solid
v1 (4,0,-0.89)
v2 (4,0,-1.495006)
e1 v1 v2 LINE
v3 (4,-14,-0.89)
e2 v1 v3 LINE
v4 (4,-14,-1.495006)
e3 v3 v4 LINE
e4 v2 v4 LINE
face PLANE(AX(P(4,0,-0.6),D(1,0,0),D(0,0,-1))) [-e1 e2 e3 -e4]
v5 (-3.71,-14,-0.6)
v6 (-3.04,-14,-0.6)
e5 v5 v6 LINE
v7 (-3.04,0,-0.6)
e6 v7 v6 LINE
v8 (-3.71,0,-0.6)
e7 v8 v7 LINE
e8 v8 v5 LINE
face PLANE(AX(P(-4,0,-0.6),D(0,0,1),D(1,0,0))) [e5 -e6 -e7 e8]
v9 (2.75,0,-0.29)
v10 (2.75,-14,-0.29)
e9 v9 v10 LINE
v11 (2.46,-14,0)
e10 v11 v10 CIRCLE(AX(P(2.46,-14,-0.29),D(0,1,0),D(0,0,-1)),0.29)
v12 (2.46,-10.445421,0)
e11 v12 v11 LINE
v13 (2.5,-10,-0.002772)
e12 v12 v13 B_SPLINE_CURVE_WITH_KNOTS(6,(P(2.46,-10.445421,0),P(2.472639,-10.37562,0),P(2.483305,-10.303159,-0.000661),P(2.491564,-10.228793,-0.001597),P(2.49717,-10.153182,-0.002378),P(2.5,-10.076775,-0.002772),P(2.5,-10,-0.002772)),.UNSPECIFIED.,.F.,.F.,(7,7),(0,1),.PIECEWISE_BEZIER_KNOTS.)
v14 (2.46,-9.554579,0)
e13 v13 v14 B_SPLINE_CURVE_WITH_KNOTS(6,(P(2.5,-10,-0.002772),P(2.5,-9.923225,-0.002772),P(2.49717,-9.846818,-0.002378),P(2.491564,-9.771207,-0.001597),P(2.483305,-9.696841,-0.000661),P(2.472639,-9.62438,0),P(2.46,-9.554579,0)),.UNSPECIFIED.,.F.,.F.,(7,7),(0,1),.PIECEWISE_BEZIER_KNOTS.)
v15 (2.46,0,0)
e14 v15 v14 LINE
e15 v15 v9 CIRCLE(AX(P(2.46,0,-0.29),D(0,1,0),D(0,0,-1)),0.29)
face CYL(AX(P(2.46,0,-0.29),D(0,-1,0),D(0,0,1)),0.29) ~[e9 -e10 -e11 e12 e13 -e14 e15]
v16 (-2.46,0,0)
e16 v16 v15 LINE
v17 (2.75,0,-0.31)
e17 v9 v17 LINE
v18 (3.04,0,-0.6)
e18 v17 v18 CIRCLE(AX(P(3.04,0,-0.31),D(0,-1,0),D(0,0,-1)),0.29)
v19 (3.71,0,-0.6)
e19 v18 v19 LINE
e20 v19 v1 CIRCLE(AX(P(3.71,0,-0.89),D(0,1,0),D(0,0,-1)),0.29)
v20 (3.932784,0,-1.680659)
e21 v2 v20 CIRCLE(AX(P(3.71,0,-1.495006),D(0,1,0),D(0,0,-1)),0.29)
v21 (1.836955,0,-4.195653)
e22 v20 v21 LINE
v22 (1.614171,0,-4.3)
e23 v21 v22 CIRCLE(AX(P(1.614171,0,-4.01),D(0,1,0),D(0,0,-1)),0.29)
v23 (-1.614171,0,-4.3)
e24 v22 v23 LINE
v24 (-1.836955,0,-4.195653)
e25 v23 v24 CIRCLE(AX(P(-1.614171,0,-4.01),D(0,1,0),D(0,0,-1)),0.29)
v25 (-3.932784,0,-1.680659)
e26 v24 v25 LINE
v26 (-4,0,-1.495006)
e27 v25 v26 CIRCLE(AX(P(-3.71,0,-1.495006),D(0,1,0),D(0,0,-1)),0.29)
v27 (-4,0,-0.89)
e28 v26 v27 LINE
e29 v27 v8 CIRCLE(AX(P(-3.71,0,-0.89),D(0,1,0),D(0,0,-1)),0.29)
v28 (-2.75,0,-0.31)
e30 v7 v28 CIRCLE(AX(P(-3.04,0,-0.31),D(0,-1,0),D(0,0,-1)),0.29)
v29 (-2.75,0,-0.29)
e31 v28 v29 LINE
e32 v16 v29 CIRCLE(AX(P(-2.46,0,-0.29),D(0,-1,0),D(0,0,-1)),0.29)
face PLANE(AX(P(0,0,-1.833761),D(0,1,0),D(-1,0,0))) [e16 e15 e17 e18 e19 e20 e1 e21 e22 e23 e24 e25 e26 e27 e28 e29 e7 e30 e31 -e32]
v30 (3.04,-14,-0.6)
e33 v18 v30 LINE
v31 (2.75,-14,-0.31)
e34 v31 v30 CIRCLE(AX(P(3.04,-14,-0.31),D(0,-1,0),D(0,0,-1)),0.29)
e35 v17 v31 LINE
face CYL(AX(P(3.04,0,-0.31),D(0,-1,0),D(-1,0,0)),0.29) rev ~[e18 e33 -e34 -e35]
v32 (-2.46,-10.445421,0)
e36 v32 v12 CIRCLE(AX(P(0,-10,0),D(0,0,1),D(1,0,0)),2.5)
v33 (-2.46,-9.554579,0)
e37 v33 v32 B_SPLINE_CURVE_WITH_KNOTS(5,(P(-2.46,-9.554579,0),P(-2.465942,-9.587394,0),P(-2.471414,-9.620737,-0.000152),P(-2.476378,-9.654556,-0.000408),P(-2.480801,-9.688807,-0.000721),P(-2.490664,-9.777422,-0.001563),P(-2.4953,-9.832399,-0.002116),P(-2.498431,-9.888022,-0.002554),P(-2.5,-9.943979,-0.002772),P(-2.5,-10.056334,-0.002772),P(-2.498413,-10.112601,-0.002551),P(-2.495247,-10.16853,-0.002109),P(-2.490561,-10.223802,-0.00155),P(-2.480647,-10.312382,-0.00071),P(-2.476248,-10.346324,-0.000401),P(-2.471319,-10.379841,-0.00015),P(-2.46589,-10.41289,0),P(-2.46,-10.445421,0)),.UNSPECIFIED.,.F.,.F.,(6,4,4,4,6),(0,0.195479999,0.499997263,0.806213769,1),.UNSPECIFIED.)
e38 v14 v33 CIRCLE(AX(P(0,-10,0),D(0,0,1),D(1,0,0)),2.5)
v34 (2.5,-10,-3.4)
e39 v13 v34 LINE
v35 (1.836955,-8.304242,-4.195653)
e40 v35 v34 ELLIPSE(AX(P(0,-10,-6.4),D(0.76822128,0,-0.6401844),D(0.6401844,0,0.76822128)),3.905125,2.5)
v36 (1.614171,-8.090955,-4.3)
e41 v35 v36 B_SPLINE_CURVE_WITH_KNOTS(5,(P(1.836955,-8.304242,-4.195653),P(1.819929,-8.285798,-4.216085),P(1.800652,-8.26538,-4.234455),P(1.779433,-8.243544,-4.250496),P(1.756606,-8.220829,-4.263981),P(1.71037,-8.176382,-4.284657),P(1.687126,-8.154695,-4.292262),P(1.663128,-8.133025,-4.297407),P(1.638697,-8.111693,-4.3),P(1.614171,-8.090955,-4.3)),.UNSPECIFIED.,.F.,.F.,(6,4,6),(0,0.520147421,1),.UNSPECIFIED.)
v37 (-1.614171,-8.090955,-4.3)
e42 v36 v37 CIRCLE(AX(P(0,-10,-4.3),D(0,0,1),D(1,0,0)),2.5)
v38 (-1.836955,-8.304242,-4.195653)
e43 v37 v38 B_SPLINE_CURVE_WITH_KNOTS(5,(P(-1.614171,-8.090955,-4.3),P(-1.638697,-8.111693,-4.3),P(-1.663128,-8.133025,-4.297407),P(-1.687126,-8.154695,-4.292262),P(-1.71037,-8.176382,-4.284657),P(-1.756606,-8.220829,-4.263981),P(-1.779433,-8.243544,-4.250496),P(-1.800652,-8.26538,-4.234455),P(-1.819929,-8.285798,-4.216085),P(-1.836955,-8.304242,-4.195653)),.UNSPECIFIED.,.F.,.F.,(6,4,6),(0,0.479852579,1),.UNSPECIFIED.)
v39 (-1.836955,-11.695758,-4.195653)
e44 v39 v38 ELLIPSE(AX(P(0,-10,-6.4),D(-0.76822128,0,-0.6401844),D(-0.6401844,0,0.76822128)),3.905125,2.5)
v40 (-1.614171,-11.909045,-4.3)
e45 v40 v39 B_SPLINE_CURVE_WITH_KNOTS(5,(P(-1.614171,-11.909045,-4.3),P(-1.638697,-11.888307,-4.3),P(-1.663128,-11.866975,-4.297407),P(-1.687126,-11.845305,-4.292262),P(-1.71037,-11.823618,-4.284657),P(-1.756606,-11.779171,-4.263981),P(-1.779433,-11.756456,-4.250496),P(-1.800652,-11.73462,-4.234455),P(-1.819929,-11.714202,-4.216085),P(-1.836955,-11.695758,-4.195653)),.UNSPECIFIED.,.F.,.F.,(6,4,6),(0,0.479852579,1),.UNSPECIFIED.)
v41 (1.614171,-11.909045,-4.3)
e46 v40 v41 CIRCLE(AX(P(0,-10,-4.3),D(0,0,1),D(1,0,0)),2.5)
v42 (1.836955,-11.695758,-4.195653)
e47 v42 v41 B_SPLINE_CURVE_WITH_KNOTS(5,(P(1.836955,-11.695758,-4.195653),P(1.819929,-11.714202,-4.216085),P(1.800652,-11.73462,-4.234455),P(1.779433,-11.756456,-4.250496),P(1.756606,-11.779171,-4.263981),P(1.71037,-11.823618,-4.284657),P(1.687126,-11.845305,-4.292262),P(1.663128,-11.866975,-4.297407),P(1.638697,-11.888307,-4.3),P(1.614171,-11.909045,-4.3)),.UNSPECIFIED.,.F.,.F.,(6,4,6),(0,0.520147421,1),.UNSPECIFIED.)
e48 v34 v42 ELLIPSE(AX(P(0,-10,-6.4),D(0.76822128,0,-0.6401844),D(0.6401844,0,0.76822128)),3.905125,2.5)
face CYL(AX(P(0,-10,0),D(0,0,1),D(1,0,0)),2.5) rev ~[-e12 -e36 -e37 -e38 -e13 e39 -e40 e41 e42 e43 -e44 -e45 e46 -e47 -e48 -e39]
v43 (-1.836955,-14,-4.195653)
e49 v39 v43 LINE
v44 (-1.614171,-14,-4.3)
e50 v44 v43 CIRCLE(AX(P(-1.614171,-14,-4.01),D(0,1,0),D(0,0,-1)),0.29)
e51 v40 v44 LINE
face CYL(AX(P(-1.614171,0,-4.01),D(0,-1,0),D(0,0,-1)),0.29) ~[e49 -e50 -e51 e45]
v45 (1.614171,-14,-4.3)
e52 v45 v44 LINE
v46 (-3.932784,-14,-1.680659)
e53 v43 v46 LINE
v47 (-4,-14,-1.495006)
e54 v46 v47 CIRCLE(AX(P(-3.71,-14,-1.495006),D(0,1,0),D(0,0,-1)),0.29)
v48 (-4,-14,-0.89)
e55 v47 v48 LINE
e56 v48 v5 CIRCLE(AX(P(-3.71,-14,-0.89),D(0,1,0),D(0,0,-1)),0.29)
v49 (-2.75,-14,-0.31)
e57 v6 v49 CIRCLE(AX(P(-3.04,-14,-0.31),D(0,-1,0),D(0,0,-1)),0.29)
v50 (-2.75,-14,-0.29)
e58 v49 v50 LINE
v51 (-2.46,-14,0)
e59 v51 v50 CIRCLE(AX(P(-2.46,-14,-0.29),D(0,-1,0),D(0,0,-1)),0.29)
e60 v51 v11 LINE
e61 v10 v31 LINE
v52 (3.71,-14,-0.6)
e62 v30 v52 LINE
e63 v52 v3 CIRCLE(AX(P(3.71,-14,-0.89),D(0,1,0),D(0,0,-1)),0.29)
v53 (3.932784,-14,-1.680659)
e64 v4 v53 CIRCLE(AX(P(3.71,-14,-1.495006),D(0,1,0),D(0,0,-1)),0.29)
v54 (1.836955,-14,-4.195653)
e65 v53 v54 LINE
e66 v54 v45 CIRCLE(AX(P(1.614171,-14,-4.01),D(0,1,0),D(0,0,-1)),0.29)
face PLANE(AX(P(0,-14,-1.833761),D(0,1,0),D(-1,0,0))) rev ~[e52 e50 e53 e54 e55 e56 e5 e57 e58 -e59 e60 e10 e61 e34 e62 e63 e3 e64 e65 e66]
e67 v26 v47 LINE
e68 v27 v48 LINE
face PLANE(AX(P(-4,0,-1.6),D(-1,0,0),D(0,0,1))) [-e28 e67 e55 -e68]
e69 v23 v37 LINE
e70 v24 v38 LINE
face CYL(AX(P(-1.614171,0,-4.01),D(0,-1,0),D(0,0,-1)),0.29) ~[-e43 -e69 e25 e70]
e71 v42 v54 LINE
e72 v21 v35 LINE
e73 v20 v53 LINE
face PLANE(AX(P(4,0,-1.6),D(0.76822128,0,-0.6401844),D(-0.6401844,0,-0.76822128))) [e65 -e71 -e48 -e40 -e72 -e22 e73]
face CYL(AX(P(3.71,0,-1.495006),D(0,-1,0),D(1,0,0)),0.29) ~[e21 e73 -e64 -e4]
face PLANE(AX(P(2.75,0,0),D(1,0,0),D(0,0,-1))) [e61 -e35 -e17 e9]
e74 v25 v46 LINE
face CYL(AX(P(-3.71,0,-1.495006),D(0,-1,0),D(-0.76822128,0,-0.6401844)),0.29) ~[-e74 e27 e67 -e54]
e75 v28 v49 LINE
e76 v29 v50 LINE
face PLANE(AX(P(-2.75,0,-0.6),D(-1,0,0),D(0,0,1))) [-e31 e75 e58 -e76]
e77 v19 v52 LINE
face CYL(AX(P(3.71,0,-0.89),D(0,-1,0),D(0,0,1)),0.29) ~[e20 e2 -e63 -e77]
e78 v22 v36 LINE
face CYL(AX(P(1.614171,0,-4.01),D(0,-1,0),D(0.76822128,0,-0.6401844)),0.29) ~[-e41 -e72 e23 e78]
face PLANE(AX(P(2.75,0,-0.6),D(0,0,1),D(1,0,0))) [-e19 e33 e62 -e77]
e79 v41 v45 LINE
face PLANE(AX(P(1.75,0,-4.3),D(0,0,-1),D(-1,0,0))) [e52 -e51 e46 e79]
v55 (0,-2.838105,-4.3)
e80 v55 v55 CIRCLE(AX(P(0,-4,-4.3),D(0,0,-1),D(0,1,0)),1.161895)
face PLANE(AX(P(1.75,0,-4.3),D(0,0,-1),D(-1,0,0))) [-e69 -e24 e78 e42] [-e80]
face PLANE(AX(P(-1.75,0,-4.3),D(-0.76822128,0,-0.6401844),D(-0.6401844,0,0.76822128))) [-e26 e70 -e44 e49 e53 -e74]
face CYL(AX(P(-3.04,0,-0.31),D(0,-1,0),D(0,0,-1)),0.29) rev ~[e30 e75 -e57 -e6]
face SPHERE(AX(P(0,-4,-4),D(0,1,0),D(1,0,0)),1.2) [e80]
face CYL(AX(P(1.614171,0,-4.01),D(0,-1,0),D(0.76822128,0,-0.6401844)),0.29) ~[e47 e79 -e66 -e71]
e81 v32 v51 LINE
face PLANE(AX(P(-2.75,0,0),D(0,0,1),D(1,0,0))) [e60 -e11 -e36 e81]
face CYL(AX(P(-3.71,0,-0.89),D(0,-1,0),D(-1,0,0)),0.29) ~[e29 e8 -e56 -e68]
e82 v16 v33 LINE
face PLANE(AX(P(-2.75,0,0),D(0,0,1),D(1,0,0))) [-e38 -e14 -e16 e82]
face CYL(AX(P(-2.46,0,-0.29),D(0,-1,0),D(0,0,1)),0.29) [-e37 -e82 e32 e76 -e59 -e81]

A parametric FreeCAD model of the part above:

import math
import FreeCAD as App
import Part
import Sketcher

V = App.Vector
Q = App.Units.Quantity


def edges_at(feature, points):
    """Names of the edges that pass closest to the given points."""
    edges = feature.Shape.Edges
    near = lambda p: min(range(len(edges)), key=lambda i: edges[i].distToShape(Part.Vertex(*p))[0])
    return sorted({f"Edge{near(p) + 1}" for p in points})

doc = App.newDocument("Part")
body = doc.addObject("PartDesign::Body", "Body")

# Sketch on XZ plane
sketch1 = body.newObject("Sketcher::SketchObject", "Sketch")
sketch1.AttachmentSupport = (doc.getObject("XZ_Plane"), [""])
sketch1.MapMode = "FlatFace"
sketch1.addGeometry(Part.LineSegment(V(2.8, 0, 0), V(-2.8, 0, 0)), False)
sketch1.addGeometry(Part.LineSegment(V(-2.8, 0, 0), V(-2.8, -0.6, 0)), False)
sketch1.addGeometry(Part.LineSegment(V(-2.8, -0.6, 0), V(-4, -0.6, 0)), False)
sketch1.addGeometry(Part.LineSegment(V(-4, -0.6, 0), V(-4, -1.6, 0)), False)
sketch1.addGeometry(Part.LineSegment(V(-4, -1.6, 0), V(-1.8, -4.3, 0)), False)
sketch1.addGeometry(Part.LineSegment(V(-1.8, -4.3, 0), V(1.8, -4.3, 0)), False)
sketch1.addGeometry(Part.LineSegment(V(1.8, -4.3, 0), V(4, -1.6, 0)), False)
sketch1.addGeometry(Part.LineSegment(V(4, -1.6, 0), V(4, -0.6, 0)), False)
sketch1.addGeometry(Part.LineSegment(V(4, -0.6, 0), V(2.8, -0.6, 0)), False)
sketch1.addGeometry(Part.LineSegment(V(2.8, -0.6, 0), V(2.8, 0, 0)), False)
sketch1.addConstraint(Sketcher.Constraint("Coincident", 0, 2, 1, 1))
sketch1.addConstraint(Sketcher.Constraint("Coincident", 1, 2, 2, 1))
sketch1.addConstraint(Sketcher.Constraint("Coincident", 2, 2, 3, 1))
sketch1.addConstraint(Sketcher.Constraint("Coincident", 3, 2, 4, 1))
sketch1.addConstraint(Sketcher.Constraint("Coincident", 4, 2, 5, 1))
sketch1.addConstraint(Sketcher.Constraint("Coincident", 5, 2, 6, 1))
sketch1.addConstraint(Sketcher.Constraint("Coincident", 6, 2, 7, 1))
sketch1.addConstraint(Sketcher.Constraint("Coincident", 7, 2, 8, 1))
sketch1.addConstraint(Sketcher.Constraint("Coincident", 8, 2, 9, 1))
sketch1.addConstraint(Sketcher.Constraint("Coincident", 9, 2, 0, 1))
sketch1.addConstraint(Sketcher.Constraint("Horizontal", 0))
sketch1.addConstraint(Sketcher.Constraint("Vertical", 1))
sketch1.addConstraint(Sketcher.Constraint("Horizontal", 2))
sketch1.addConstraint(Sketcher.Constraint("Vertical", 3))
sketch1.addConstraint(Sketcher.Constraint("Horizontal", 5))
sketch1.addConstraint(Sketcher.Constraint("Vertical", 7))
sketch1.addConstraint(Sketcher.Constraint("Horizontal", 8))
sketch1.addConstraint(Sketcher.Constraint("Vertical", 9))
sketch1.addConstraint(Sketcher.Constraint("Symmetric", 0, 2, 9, 2, -1, 1))
sketch1.addConstraint(Sketcher.Constraint("Symmetric", 3, 2, 6, 2, -2))
sketch1.addConstraint(Sketcher.Constraint("Horizontal", 2, 2, 7, 2))
sketch1.addConstraint(Sketcher.Constraint("Equal", 4, 6))
sketch1.addConstraint(Sketcher.Constraint("DistanceY", 3, 2, 3, 1, Q("1 mm")))
sketch1.addConstraint(Sketcher.Constraint("DistanceX", 0, 2, 0, 1, Q("5.5 mm")))
sketch1.addConstraint(Sketcher.Constraint("DistanceX", 5, 1, 5, 2, Q("3.5 mm")))
sketch1.addConstraint(Sketcher.Constraint("DistanceY", 1, 2, 1, 1, Q("0.6 mm")))
sketch1.addConstraint(Sketcher.Constraint("DistanceX", 2, 2, -1, 1, Q("4 mm")))
sketch1.addConstraint(Sketcher.Constraint("DistanceY", 4, 2, -1, 1, Q("4.3 mm")))
pad1 = body.newObject("PartDesign::Pad", "Pad")
pad1.Profile = sketch1
pad1.Length = 14
doc.recompute()

fillet = body.newObject("PartDesign::Fillet", "Fillet")
fillet.Base = (pad1, edges_at(pad1, [
    (1.75, -7, -4.3),
    (4, -7, -1.6),
    (4, -7, -0.6),
    (-1.75, -7, -4.3),
    (-4, -7, -1.6),
    (-4, -7, -0.6),
    (2.75, -7, -0.6),
    (2.75, -7, 0),
    (-2.75, -7, -0.6),
    (-2.75, -7, 0),
]))
fillet.Radius = 0.29

# Sketch on XY plane
sketch2 = body.newObject("Sketcher::SketchObject", "Sketch001")
sketch2.AttachmentSupport = (doc.getObject("XY_Plane"), [""])
sketch2.MapMode = "FlatFace"
sketch2.addGeometry(Part.Circle(V(0, -10, 0), V(0, 0, 1), 2.5), False)
sketch2.addConstraint(Sketcher.Constraint("PointOnObject", 0, 3, -2))
sketch2.addConstraint(Sketcher.Constraint("Diameter", 0, Q("5 mm")))
sketch2.addConstraint(Sketcher.Constraint("DistanceY", 0, 3, -1, 1, Q("10 mm")))
pocket1 = body.newObject("PartDesign::Pocket", "Pocket")
pocket1.Profile = sketch2
pocket1.Type = "ThroughAll"

# Sketch on XY plane
sketch3 = body.newObject("Sketcher::SketchObject", "Sketch002")
sketch3.AttachmentSupport = (doc.getObject("XY_Plane"), [""])
sketch3.MapMode = "FlatFace"
sketch3.AttachmentOffset = App.Placement(V(0, 0, -4), App.Rotation())
sketch3.addGeometry(Part.ArcOfCircle(Part.Circle(V(0, -4, 0), V(0, 0, 1), 1.2), math.radians(-90), math.radians(90)), False)
sketch3.addGeometry(Part.LineSegment(V(0, -2.8, 0), V(0, -5.2, 0)), False)
sketch3.addConstraint(Sketcher.Constraint("Coincident", 0, 1, 1, 2))
sketch3.addConstraint(Sketcher.Constraint("Coincident", 1, 1, 0, 2))
sketch3.addConstraint(Sketcher.Constraint("Vertical", 1))
sketch3.addConstraint(Sketcher.Constraint("PointOnObject", 0, 3, -2))
sketch3.addConstraint(Sketcher.Constraint("PointOnObject", 0, 1, -2))
sketch3.addConstraint(Sketcher.Constraint("Radius", 0, Q("1.2 mm")))
sketch3.addConstraint(Sketcher.Constraint("DistanceY", 0, 3, -1, 1, Q("4 mm")))
revolution = body.newObject("PartDesign::Revolution", "Revolution")
revolution.Profile = sketch3
revolution.ReferenceAxis = (sketch3, ["V_Axis"])
revolution.Angle = 360

doc.recompute()
